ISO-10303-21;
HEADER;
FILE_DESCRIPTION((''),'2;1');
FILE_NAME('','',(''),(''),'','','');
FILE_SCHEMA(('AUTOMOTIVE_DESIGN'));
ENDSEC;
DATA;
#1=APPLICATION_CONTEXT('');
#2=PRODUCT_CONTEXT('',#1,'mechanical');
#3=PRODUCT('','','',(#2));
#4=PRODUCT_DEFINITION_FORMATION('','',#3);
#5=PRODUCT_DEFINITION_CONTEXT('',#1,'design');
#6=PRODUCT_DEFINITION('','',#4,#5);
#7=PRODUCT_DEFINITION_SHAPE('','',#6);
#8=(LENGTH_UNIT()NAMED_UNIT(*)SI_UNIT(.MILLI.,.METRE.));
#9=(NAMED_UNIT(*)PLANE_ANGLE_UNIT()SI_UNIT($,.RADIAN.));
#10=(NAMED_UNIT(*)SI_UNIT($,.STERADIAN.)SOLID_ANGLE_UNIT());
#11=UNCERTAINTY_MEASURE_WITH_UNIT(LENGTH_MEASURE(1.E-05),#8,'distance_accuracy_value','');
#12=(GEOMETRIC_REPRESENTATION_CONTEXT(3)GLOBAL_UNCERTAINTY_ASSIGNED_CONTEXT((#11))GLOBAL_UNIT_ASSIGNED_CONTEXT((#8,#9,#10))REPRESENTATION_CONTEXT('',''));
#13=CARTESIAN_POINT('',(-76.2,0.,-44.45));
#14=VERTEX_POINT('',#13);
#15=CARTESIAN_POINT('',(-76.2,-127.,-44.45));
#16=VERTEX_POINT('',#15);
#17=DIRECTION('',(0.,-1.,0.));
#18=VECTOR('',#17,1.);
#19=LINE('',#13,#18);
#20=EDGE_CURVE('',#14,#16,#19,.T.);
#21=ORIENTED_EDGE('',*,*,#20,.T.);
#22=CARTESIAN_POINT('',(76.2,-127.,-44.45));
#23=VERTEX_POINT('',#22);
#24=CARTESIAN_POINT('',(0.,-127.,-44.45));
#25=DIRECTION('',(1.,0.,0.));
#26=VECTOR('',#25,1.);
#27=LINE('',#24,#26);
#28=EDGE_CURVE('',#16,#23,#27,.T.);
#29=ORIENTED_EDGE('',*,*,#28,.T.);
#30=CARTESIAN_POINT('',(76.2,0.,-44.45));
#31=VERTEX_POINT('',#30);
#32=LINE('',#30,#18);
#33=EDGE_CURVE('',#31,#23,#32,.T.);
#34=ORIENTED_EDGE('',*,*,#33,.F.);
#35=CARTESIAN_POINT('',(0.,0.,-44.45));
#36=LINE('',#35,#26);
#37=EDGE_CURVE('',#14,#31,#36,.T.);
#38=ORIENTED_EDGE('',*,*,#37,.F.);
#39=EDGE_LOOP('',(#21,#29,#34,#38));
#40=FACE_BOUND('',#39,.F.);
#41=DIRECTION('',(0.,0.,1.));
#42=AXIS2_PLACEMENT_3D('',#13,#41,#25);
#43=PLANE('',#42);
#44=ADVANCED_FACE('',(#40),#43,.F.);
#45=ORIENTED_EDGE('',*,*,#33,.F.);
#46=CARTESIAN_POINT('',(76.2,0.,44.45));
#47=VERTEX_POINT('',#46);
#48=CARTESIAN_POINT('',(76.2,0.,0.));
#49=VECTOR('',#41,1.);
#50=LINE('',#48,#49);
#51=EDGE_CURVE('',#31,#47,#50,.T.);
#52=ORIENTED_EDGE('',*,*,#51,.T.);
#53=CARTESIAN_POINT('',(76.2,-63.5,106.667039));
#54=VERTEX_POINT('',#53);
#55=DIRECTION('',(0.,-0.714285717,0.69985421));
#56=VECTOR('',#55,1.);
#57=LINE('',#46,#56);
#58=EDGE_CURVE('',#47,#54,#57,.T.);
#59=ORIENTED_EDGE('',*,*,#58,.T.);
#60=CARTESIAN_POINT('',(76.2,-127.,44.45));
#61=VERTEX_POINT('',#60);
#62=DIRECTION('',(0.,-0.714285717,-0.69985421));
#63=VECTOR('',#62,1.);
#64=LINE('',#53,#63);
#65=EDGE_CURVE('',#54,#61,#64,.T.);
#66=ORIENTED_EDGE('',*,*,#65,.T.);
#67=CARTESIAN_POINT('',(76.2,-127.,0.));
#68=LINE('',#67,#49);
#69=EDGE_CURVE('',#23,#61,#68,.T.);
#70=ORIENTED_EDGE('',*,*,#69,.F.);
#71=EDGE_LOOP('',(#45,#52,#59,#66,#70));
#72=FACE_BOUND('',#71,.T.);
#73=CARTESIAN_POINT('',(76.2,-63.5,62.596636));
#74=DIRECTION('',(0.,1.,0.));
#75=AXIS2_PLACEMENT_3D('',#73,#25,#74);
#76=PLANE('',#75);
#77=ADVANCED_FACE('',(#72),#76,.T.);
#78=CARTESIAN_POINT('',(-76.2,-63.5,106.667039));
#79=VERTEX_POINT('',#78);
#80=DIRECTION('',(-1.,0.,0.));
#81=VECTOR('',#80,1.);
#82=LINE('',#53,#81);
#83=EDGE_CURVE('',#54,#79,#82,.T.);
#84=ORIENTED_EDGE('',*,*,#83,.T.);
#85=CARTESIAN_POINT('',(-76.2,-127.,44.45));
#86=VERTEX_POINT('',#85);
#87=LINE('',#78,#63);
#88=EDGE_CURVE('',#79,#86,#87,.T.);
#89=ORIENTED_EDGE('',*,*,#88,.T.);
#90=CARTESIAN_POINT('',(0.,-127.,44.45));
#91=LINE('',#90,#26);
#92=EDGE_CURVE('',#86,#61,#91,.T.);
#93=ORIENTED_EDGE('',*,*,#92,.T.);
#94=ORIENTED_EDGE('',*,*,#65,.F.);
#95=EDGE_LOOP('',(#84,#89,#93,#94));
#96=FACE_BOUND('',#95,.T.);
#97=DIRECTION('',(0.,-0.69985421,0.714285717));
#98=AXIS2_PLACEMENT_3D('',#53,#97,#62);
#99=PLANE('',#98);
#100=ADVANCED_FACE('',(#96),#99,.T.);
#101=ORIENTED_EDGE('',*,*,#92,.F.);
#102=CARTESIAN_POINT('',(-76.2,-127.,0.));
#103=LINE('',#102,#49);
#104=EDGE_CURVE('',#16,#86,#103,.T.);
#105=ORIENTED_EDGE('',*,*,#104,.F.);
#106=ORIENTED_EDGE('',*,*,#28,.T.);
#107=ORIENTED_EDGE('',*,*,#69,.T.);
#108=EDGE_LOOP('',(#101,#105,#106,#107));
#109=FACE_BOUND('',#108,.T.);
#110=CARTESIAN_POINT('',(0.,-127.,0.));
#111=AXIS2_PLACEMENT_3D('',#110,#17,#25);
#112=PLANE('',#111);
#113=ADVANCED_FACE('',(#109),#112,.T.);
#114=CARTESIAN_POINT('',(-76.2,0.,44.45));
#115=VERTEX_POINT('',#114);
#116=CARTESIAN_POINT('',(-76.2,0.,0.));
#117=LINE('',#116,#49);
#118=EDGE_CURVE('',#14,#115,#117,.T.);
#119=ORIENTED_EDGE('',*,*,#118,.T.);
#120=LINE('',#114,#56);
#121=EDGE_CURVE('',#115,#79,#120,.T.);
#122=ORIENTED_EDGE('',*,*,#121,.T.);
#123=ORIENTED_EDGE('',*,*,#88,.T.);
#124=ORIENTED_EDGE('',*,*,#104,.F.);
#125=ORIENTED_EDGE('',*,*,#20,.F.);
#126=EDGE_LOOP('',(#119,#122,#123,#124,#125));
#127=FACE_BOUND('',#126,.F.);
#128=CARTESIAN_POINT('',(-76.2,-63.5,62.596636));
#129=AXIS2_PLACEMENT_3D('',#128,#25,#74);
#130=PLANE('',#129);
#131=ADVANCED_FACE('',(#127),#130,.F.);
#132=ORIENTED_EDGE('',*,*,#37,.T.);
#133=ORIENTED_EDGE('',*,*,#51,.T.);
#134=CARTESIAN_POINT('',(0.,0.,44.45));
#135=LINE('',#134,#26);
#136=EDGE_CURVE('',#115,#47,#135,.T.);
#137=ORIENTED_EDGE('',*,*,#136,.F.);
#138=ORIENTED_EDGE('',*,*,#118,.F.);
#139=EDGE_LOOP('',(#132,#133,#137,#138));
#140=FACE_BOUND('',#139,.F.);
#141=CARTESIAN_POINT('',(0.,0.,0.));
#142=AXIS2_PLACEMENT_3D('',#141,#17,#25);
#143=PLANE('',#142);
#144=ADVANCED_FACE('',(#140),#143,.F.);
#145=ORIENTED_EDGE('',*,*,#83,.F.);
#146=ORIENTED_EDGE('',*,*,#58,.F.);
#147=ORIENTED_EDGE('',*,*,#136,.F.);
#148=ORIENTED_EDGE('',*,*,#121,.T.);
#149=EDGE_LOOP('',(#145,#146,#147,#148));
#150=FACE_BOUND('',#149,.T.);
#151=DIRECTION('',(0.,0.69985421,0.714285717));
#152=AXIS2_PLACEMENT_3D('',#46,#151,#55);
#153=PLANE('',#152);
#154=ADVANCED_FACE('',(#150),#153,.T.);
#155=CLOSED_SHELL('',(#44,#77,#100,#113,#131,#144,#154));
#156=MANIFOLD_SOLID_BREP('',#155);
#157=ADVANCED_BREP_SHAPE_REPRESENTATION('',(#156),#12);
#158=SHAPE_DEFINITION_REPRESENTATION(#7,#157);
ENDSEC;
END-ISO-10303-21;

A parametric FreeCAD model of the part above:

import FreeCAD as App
import Part
import Sketcher
Q = App.Units.Quantity

doc = App.newDocument("Part")
body = doc.addObject("PartDesign::Body", "Body")

# Sketch on XZ plane
sketch1 = body.newObject("Sketcher::SketchObject", "Sketch")
sketch1.AttachmentSupport = (doc.getObject("XZ_Plane"), [""])
sketch1.MapMode = "FlatFace"
sketch1.addGeometry([
    Part.LineSegment(App.Vector(-76.2, 44.45, 0), App.Vector(-76.2, -44.45, 0)),
    Part.LineSegment(App.Vector(-76.2, -44.45, 0), App.Vector(76.2, -44.45, 0)),
    Part.LineSegment(App.Vector(76.2, -44.45, 0), App.Vector(76.2, 44.45, 0)),
    Part.LineSegment(App.Vector(76.2, 44.45, 0), App.Vector(-76.2, 44.45, 0)),
], False)
sketch1.addConstraint([
    Sketcher.Constraint("Coincident", 0, 2, 1, 1),
    Sketcher.Constraint("Coincident", 1, 2, 2, 1),
    Sketcher.Constraint("Coincident", 2, 2, 3, 1),
    Sketcher.Constraint("Coincident", 3, 2, 0, 1),
    Sketcher.Constraint("Vertical", 0),
    Sketcher.Constraint("Horizontal", 1),
    Sketcher.Constraint("Vertical", 2),
    Sketcher.Constraint("Horizontal", 3),
    Sketcher.Constraint("Symmetric", 0, 2, 2, 2, -1, 1),
    Sketcher.Constraint("DistanceX", 1, 1, 1, 2, Q("6 in")),
    Sketcher.Constraint("DistanceY", 0, 2, 0, 1, Q("3.5 in")),
])
pad1 = body.newObject("PartDesign::Pad", "Pad")
pad1.Profile = sketch1
pad1.Length = Q("5 in")

# Sketch on YZ plane
sketch2 = body.newObject("Sketcher::SketchObject", "Sketch001")
sketch2.AttachmentSupport = (doc.getObject("YZ_Plane"), [""])
sketch2.MapMode = "FlatFace"
sketch2.AttachmentOffset = App.Placement(App.Vector(0, 0, 3 * 25.4), App.Rotation())
sketch2.addGeometry([
    Part.LineSegment(App.Vector(-63.5, 106.667039, 0), App.Vector(-127, 44.45, 0)),
    Part.LineSegment(App.Vector(-127, 44.45, 0), App.Vector(0, 44.45, 0)),
    Part.LineSegment(App.Vector(0, 44.45, 0), App.Vector(-63.5, 106.667039, 0)),
], False)
sketch2.addConstraint([
    Sketcher.Constraint("Coincident", 0, 2, 1, 1),
    Sketcher.Constraint("Coincident", 1, 2, 2, 1),
    Sketcher.Constraint("Coincident", 2, 2, 0, 1),
    Sketcher.Constraint("Horizontal", 1),
    Sketcher.Constraint("PointOnObject", 1, 2, -2),
    Sketcher.Constraint("Equal", 0, 2),
    Sketcher.Constraint("DistanceX", 1, 1, 1, 2, Q("5 in")),
    Sketcher.Constraint("Distance", 0, Q("3.5 in")),
    Sketcher.Constraint("DistanceY", -1, 1, 0, 2, Q("1.75 in")),
])
pad2 = body.newObject("PartDesign::Pad", "Pad001")
pad2.Profile = sketch2
pad2.Length = Q("6 in")
pad2.Reversed = True

doc.recompute()
